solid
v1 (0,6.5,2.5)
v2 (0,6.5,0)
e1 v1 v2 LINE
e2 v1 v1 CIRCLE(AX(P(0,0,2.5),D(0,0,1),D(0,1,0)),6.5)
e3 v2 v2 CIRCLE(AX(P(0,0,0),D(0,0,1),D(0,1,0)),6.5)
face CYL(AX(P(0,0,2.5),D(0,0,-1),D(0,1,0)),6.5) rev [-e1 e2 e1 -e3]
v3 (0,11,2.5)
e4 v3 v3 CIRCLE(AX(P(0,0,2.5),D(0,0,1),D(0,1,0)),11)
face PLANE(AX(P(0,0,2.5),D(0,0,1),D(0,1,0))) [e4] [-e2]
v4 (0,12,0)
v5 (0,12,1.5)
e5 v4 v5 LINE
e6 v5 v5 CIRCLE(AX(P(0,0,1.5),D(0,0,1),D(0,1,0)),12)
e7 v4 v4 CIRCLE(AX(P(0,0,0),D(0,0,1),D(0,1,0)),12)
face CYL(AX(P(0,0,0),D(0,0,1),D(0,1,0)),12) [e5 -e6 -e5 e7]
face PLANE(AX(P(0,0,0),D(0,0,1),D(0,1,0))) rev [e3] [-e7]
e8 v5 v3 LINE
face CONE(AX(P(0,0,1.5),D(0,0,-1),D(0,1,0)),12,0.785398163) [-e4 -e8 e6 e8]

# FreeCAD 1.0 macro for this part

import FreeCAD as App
import Part
import Sketcher

V = App.Vector
Q = App.Units.Quantity

doc = App.newDocument("Part")
body = doc.addObject("PartDesign::Body", "Body")

# Sketch on YZ plane
sketch1 = body.newObject("Sketcher::SketchObject", "Sketch")
sketch1.AttachmentSupport = (doc.getObject("YZ_Plane"), [""])
sketch1.MapMode = "FlatFace"
sketch1.addGeometry(Part.LineSegment(V(6.5, 0, 0), V(12, 0, 0)), False)
sketch1.addGeometry(Part.LineSegment(V(12, 0, 0), V(12, 1.5, 0)), False)
sketch1.addGeometry(Part.LineSegment(V(12, 1.5, 0), V(11, 2.5, 0)), False)
sketch1.addGeometry(Part.LineSegment(V(11, 2.5, 0), V(6.5, 2.5, 0)), False)
sketch1.addGeometry(Part.LineSegment(V(6.5, 2.5, 0), V(6.5, 0, 0)), False)
sketch1.addConstraint(Sketcher.Constraint("Coincident", 0, 2, 1, 1))
sketch1.addConstraint(Sketcher.Constraint("Coincident", 1, 2, 2, 1))
sketch1.addConstraint(Sketcher.Constraint("Coincident", 2, 2, 3, 1))
sketch1.addConstraint(Sketcher.Constraint("Coincident", 3, 2, 4, 1))
sketch1.addConstraint(Sketcher.Constraint("Coincident", 4, 2, 0, 1))
sketch1.addConstraint(Sketcher.Constraint("Horizontal", 0))
sketch1.addConstraint(Sketcher.Constraint("Vertical", 1))
sketch1.addConstraint(Sketcher.Constraint("Horizontal", 3))
sketch1.addConstraint(Sketcher.Constraint("Vertical", 4))
sketch1.addConstraint(Sketcher.Constraint("PointOnObject", 0, 2, -1))
sketch1.addConstraint(Sketcher.Constraint("Angle", 2, Q("135 deg")))
sketch1.addConstraint(Sketcher.Constraint("DistanceX", 0, 1, 0, 2, Q("5.5 mm")))
sketch1.addConstraint(Sketcher.Constraint("DistanceX", 3, 2, 3, 1, Q("4.5 mm")))
sketch1.addConstraint(Sketcher.Constraint("DistanceY", 1, 1, 1, 2, Q("1.5 mm")))
sketch1.addConstraint(Sketcher.Constraint("DistanceX", -1, 1, 0, 2, Q("12 mm")))
revolution = body.newObject("PartDesign::Revolution", "Revolution")
revolution.Profile = sketch1
revolution.ReferenceAxis = (sketch1, ["V_Axis"])
revolution.Angle = 360

doc.recompute()
